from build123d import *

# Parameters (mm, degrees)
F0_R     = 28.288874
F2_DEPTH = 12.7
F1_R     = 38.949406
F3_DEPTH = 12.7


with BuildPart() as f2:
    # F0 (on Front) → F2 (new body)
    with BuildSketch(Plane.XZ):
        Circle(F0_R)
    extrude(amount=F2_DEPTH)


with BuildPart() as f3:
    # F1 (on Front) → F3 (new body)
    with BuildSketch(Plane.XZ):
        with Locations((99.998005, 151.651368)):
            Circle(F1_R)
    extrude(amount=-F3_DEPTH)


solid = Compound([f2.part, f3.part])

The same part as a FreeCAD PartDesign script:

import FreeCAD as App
import Part
import Sketcher

V = App.Vector

doc = App.newDocument("Part")
params = doc.addObject("Spreadsheet::Sheet", "Params")
for row, (alias, value) in enumerate([
    ("pad1_length", "0.5 in"),
    ("pad2_length", "0.5 in"),
], start=1):
    params.set(f"A{row}", alias)
    params.set(f"B{row}", "=" + value)
    params.setAlias(f"B{row}", alias)

body = doc.addObject("PartDesign::Body", "Body")

# Sketch on XZ plane
sketch1 = doc.addObject("Sketcher::SketchObject", "Sketch")
body.addObject(sketch1)
sketch1.AttachmentSupport = (doc.XZ_Plane, [""])
sketch1.MapMode = "FlatFace"
sketch1.addGeometry(Part.Circle(V(0, 0, 0), V(0, 0, 1), 28), False)
sketch1.addConstraint([
    Sketcher.Constraint("Coincident", 0, 3, -1, 1),
    Sketcher.Constraint("Diameter", 0, 56.577748),
])
pad1 = doc.addObject("PartDesign::Pad", "Pad")
body.addObject(pad1)
pad1.Profile = sketch1
pad1.setExpression("Length", "Params.pad1_length")
body2 = doc.addObject("PartDesign::Body", "Body001")

# Sketch on XZ plane
sketch2 = doc.addObject("Sketcher::SketchObject", "Sketch001")
body2.addObject(sketch2)
sketch2.AttachmentSupport = (doc.getObject("XZ_Plane001"), [""])
sketch2.MapMode = "FlatFace"
sketch2.addGeometry(Part.Circle(V(100, 152, 0), V(0, 0, 1), 39), False)
sketch2.addConstraint([
    Sketcher.Constraint("Diameter", 0, 77.898812),
    Sketcher.Constraint("DistanceY", -1, 1, 0, 3, 151.651368),
    Sketcher.Constraint("DistanceX", -1, 1, 0, 3, 99.998005),
])
pad2 = doc.addObject("PartDesign::Pad", "Pad001")
body2.addObject(pad2)
pad2.Profile = sketch2
pad2.setExpression("Length", "Params.pad2_length")
pad2.Reversed = True

doc.recompute()
